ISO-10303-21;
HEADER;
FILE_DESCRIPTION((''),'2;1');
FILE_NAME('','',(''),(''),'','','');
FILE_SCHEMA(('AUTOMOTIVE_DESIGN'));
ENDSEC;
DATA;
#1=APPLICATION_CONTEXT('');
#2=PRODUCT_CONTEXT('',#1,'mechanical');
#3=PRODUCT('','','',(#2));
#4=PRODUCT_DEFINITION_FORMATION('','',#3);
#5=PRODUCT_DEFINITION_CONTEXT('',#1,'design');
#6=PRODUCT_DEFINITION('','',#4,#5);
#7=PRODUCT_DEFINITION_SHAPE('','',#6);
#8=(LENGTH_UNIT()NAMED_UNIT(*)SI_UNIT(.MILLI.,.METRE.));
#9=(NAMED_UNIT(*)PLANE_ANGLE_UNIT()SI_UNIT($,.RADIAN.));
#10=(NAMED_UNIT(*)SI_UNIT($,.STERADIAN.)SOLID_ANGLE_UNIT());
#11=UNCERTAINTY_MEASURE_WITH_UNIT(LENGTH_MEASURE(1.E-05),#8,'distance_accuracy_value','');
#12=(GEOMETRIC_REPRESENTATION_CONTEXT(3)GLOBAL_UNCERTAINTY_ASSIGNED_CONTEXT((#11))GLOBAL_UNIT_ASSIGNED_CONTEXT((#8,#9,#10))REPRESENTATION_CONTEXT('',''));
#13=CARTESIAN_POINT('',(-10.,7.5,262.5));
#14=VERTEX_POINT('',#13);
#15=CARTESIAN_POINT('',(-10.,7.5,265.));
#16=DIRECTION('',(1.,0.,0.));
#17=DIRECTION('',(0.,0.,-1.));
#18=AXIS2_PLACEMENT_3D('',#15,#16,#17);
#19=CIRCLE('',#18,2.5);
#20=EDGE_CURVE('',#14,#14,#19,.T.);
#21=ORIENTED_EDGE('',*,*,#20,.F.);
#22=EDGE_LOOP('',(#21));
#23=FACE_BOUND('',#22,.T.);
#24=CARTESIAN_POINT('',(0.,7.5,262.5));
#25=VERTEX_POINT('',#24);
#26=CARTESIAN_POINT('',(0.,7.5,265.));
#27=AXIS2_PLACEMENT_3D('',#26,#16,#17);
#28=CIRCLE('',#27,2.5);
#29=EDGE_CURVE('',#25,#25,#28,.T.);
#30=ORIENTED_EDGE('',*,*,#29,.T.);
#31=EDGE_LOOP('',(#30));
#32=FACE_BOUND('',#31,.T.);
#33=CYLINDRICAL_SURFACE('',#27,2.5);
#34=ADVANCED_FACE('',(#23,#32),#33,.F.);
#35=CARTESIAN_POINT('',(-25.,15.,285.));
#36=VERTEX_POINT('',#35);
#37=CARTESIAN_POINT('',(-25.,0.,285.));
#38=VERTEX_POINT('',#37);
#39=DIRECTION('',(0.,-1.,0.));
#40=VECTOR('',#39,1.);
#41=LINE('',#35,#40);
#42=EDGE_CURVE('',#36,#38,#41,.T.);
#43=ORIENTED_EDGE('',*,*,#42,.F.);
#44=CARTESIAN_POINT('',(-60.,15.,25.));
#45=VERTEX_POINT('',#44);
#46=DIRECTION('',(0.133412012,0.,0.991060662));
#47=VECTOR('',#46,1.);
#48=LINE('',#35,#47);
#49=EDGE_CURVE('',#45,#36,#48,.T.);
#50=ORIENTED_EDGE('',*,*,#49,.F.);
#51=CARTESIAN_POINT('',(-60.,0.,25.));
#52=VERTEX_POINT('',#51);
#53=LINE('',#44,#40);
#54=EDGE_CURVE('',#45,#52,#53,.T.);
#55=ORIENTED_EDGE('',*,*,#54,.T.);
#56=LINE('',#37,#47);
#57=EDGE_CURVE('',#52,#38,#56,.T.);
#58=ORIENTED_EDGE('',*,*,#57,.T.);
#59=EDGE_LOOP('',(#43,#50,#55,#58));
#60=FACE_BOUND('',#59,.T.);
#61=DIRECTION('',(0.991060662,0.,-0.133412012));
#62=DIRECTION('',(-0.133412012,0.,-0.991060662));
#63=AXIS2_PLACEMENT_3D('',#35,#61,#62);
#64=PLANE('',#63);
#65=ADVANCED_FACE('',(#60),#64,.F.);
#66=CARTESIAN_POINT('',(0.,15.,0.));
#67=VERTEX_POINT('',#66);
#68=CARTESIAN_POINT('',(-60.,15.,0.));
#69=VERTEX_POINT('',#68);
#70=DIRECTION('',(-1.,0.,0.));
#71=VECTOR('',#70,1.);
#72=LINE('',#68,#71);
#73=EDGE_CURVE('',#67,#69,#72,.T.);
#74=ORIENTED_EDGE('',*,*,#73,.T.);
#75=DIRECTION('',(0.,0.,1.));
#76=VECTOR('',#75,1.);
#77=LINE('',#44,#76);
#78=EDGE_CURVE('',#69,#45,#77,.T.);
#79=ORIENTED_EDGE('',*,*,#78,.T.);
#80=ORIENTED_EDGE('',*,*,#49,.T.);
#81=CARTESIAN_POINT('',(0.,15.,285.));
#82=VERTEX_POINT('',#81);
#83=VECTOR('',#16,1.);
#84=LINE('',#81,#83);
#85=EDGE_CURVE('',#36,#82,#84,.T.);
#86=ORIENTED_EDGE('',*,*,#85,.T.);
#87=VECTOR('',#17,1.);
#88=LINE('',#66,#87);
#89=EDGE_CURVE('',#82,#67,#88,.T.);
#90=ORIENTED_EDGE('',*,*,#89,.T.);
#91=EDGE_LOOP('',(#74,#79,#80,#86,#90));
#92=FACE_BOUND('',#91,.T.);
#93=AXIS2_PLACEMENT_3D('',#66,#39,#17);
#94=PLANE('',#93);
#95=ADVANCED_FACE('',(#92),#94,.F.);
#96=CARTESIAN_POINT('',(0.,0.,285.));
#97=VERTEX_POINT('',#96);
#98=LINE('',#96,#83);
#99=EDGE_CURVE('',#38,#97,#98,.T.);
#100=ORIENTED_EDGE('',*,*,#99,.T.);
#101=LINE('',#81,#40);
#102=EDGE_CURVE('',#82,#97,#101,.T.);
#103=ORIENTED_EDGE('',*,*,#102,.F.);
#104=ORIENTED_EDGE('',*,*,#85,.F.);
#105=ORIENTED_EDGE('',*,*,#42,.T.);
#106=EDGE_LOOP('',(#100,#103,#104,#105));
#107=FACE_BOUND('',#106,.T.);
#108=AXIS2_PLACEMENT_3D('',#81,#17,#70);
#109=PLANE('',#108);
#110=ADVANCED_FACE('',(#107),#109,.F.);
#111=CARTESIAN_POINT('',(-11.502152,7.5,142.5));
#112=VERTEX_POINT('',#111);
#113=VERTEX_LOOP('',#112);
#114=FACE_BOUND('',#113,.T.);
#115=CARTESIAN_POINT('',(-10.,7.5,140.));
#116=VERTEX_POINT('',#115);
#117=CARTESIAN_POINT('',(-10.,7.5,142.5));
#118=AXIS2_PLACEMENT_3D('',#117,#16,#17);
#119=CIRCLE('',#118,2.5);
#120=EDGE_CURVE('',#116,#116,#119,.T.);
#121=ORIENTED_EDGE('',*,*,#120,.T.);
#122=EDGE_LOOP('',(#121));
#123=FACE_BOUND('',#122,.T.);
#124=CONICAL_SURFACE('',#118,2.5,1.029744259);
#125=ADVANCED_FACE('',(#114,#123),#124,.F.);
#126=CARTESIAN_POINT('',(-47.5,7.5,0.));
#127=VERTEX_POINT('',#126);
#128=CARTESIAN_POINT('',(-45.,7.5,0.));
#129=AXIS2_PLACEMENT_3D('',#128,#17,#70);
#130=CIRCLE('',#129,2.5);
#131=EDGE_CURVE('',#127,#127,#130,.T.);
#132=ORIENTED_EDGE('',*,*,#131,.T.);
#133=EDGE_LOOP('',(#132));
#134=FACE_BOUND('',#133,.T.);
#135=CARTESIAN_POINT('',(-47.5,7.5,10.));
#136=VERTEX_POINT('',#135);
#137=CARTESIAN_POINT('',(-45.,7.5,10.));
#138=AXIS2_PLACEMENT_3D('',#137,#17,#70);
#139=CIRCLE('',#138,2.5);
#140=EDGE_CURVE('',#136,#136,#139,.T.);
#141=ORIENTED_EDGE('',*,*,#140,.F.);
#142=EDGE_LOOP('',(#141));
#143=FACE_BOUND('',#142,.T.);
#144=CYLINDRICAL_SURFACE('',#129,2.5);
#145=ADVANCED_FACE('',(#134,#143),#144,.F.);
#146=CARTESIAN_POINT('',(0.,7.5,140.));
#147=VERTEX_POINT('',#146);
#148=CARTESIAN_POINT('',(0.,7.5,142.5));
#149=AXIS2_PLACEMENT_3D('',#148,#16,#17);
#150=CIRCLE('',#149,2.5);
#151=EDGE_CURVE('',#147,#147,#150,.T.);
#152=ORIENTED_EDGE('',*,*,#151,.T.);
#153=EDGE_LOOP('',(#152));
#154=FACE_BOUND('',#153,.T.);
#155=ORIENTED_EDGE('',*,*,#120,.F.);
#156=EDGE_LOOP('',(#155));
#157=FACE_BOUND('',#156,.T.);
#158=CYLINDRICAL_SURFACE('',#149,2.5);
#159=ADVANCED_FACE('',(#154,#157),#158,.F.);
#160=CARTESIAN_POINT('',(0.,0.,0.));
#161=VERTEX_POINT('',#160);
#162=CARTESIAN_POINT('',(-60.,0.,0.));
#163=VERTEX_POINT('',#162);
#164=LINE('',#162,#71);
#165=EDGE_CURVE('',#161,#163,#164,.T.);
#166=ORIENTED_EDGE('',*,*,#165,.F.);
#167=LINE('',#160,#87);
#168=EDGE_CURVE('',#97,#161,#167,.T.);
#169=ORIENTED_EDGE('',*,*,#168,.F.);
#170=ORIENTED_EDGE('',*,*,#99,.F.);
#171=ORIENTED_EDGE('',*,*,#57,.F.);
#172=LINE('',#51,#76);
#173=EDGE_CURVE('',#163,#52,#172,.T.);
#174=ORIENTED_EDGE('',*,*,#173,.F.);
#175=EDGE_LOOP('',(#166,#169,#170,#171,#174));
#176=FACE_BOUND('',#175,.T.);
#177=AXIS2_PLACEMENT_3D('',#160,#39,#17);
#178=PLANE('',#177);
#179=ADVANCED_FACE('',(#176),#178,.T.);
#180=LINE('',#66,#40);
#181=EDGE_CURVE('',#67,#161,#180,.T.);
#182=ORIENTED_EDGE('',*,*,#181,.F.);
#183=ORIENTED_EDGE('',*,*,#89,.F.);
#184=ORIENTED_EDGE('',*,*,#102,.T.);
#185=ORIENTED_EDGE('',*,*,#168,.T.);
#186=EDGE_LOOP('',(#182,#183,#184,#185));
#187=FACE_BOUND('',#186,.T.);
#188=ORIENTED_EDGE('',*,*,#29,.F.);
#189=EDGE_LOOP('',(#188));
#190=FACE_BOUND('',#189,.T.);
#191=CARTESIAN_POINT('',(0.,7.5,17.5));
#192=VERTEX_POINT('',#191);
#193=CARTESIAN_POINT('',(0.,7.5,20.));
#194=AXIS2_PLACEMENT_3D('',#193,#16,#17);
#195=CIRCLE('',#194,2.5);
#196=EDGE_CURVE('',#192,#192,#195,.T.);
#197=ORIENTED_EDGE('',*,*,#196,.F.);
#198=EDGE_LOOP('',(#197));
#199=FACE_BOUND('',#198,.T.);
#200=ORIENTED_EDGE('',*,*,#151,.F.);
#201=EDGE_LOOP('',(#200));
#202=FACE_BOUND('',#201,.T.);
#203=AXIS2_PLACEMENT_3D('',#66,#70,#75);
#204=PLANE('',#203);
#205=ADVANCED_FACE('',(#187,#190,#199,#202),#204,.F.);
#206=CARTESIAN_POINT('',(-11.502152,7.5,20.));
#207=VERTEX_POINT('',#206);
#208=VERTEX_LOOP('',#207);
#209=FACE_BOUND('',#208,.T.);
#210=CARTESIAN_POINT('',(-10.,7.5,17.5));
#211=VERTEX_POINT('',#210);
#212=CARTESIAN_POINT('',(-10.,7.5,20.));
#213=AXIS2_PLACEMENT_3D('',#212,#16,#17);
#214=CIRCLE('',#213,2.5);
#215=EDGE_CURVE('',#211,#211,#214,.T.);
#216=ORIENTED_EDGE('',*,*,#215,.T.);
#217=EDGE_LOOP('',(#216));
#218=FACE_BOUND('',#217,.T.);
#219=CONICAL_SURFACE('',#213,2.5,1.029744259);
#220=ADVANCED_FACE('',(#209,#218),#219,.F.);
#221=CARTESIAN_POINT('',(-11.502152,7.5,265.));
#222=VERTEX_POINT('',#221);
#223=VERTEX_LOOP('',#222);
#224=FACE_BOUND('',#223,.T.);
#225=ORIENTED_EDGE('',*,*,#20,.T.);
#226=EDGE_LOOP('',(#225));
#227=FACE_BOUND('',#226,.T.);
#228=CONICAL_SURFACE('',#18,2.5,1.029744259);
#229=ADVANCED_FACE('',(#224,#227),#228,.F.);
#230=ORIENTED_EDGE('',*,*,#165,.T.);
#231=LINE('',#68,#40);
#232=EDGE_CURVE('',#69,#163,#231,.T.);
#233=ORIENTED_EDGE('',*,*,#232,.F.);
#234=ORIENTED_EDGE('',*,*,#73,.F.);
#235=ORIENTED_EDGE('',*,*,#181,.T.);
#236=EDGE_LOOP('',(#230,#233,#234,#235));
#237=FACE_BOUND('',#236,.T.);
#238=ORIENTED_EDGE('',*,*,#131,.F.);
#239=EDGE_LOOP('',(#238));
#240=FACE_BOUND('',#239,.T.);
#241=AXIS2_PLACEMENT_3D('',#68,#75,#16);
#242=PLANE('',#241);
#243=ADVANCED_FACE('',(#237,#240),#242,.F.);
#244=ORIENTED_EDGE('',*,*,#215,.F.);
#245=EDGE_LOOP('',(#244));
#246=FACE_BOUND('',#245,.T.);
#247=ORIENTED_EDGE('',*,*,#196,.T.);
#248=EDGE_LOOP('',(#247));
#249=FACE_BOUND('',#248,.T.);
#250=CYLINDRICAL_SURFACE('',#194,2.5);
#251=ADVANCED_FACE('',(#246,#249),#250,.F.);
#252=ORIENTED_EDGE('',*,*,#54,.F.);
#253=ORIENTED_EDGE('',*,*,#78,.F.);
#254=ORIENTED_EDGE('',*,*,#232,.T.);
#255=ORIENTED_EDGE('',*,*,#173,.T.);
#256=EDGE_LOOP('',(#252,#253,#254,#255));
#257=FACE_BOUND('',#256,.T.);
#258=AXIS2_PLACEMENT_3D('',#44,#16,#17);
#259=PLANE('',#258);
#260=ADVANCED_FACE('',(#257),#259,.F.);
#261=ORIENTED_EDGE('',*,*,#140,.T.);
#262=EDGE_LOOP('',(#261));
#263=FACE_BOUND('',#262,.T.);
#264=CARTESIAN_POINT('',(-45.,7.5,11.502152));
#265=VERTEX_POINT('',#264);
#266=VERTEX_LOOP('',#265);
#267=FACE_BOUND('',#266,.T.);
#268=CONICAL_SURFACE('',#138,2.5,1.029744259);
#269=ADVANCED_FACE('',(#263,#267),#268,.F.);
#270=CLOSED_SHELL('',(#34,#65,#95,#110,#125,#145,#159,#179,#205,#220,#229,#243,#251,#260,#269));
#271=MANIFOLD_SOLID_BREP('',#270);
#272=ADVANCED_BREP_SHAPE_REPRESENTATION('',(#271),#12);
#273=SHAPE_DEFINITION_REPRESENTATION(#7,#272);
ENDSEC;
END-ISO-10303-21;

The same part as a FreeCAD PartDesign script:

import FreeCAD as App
import Part
import Sketcher

V = App.Vector

doc = App.newDocument("Part")
body = doc.addObject("PartDesign::Body", "Body")

sketch1 = body.newObject("Sketcher::SketchObject", "Sketch")
sketch1.AttachmentSupport = (doc.getObject("XZ_Plane"), [""])
sketch1.MapMode = "FlatFace"
sketch1.addGeometry(Part.LineSegment(V(0, 285, 0), V(0, 0, 0)), False)
sketch1.addGeometry(Part.LineSegment(V(0, 0, 0), V(-60, 0, 0)), False)
sketch1.addGeometry(Part.LineSegment(V(-60, 0, 0), V(-60, 25, 0)), False)
sketch1.addGeometry(Part.LineSegment(V(-60, 25, 0), V(-25, 285, 0)), False)
sketch1.addGeometry(Part.LineSegment(V(-25, 285, 0), V(0, 285, 0)), False)
sketch1.addConstraint(Sketcher.Constraint("Coincident", 0, 2, 1, 1))
sketch1.addConstraint(Sketcher.Constraint("Coincident", 1, 2, 2, 1))
sketch1.addConstraint(Sketcher.Constraint("Coincident", 2, 2, 3, 1))
sketch1.addConstraint(Sketcher.Constraint("Coincident", 3, 2, 4, 1))
sketch1.addConstraint(Sketcher.Constraint("Coincident", 4, 2, 0, 1))
sketch1.addConstraint(Sketcher.Constraint("Vertical", 0))
sketch1.addConstraint(Sketcher.Constraint("Horizontal", 1))
sketch1.addConstraint(Sketcher.Constraint("Vertical", 2))
sketch1.addConstraint(Sketcher.Constraint("Horizontal", 4))
sketch1.addConstraint(Sketcher.Constraint("Coincident", 0, 2, -1, 1))
sketch1.addConstraint(Sketcher.Constraint("Equal", 4, 2))
sketch1.addConstraint(Sketcher.Constraint("DistanceX", 1, 2, 1, 1, 60.0))
sketch1.addConstraint(Sketcher.Constraint("DistanceX", 4, 1, 4, 2, 25.0))
sketch1.addConstraint(Sketcher.Constraint("DistanceY", 0, 2, 0, 1, 285.0))
pad1 = body.newObject("PartDesign::Pad", "Pad")
pad1.Profile = sketch1
pad1.Length = 15
pad1.Reversed = True

sketch2 = body.newObject("Sketcher::SketchObject", "Sketch001")
sketch2.AttachmentSupport = (doc.getObject("XY_Plane"), [""])
sketch2.MapMode = "FlatFace"
sketch2.addGeometry(Part.Circle(V(-45, 7.5, 0), V(0, 0, 1), 2.5), False)
sketch2.addConstraint(Sketcher.Constraint("Diameter", 0, 5.0))
sketch2.addConstraint(Sketcher.Constraint("DistanceX", 0, 3, -1, 1, 45.0))
sketch2.addConstraint(Sketcher.Constraint("DistanceY", -1, 1, 0, 3, 7.5))
doc.recompute()
hole = body.newObject("PartDesign::Hole", "Hole")
hole.Profile = sketch2
hole.ThreadType = "None"
hole.Diameter = 5
hole.DepthType = "Dimension"
hole.Depth = 10
hole.DrillPoint = "Angled"
hole.DrillPointAngle = 118
hole.Reversed = True

sketch3 = body.newObject("Sketcher::SketchObject", "Sketch002")
sketch3.AttachmentSupport = (doc.getObject("YZ_Plane"), [""])
sketch3.MapMode = "FlatFace"
sketch3.addGeometry(Part.Circle(V(7.5, 265, 0), V(0, 0, 1), 2.5), False)
sketch3.addGeometry(Part.Circle(V(7.5, 142.5, 0), V(0, 0, 1), 2.5), False)
sketch3.addGeometry(Part.Circle(V(7.5, 20, 0), V(0, 0, 1), 2.5), False)
sketch3.addConstraint(Sketcher.Constraint("Equal", 0, 1))
sketch3.addConstraint(Sketcher.Constraint("Equal", 1, 2))
sketch3.addConstraint(Sketcher.Constraint("Vertical", 0, 3, 1, 3))
sketch3.addConstraint(Sketcher.Constraint("Vertical", 1, 3, 2, 3))
sketch3.addConstraint(Sketcher.Constraint("Diameter", 0, 5.0))
sketch3.addConstraint(Sketcher.Constraint("DistanceY", -1, 1, 0, 3, 265.0))
sketch3.addConstraint(Sketcher.Constraint("DistanceY", -1, 1, 2, 3, 20.0))
sketch3.addConstraint(Sketcher.Constraint("DistanceX", -1, 1, 0, 3, 7.5))
sketch3.addConstraint(Sketcher.Constraint("DistanceY", -1, 1, 1, 3, 142.5))
doc.recompute()
hole2 = body.newObject("PartDesign::Hole", "Hole001")
hole2.Profile = sketch3
hole2.ThreadType = "None"
hole2.Diameter = 5
hole2.DepthType = "Dimension"
hole2.Depth = 10
hole2.DrillPoint = "Angled"
hole2.DrillPointAngle = 118

doc.recompute()
